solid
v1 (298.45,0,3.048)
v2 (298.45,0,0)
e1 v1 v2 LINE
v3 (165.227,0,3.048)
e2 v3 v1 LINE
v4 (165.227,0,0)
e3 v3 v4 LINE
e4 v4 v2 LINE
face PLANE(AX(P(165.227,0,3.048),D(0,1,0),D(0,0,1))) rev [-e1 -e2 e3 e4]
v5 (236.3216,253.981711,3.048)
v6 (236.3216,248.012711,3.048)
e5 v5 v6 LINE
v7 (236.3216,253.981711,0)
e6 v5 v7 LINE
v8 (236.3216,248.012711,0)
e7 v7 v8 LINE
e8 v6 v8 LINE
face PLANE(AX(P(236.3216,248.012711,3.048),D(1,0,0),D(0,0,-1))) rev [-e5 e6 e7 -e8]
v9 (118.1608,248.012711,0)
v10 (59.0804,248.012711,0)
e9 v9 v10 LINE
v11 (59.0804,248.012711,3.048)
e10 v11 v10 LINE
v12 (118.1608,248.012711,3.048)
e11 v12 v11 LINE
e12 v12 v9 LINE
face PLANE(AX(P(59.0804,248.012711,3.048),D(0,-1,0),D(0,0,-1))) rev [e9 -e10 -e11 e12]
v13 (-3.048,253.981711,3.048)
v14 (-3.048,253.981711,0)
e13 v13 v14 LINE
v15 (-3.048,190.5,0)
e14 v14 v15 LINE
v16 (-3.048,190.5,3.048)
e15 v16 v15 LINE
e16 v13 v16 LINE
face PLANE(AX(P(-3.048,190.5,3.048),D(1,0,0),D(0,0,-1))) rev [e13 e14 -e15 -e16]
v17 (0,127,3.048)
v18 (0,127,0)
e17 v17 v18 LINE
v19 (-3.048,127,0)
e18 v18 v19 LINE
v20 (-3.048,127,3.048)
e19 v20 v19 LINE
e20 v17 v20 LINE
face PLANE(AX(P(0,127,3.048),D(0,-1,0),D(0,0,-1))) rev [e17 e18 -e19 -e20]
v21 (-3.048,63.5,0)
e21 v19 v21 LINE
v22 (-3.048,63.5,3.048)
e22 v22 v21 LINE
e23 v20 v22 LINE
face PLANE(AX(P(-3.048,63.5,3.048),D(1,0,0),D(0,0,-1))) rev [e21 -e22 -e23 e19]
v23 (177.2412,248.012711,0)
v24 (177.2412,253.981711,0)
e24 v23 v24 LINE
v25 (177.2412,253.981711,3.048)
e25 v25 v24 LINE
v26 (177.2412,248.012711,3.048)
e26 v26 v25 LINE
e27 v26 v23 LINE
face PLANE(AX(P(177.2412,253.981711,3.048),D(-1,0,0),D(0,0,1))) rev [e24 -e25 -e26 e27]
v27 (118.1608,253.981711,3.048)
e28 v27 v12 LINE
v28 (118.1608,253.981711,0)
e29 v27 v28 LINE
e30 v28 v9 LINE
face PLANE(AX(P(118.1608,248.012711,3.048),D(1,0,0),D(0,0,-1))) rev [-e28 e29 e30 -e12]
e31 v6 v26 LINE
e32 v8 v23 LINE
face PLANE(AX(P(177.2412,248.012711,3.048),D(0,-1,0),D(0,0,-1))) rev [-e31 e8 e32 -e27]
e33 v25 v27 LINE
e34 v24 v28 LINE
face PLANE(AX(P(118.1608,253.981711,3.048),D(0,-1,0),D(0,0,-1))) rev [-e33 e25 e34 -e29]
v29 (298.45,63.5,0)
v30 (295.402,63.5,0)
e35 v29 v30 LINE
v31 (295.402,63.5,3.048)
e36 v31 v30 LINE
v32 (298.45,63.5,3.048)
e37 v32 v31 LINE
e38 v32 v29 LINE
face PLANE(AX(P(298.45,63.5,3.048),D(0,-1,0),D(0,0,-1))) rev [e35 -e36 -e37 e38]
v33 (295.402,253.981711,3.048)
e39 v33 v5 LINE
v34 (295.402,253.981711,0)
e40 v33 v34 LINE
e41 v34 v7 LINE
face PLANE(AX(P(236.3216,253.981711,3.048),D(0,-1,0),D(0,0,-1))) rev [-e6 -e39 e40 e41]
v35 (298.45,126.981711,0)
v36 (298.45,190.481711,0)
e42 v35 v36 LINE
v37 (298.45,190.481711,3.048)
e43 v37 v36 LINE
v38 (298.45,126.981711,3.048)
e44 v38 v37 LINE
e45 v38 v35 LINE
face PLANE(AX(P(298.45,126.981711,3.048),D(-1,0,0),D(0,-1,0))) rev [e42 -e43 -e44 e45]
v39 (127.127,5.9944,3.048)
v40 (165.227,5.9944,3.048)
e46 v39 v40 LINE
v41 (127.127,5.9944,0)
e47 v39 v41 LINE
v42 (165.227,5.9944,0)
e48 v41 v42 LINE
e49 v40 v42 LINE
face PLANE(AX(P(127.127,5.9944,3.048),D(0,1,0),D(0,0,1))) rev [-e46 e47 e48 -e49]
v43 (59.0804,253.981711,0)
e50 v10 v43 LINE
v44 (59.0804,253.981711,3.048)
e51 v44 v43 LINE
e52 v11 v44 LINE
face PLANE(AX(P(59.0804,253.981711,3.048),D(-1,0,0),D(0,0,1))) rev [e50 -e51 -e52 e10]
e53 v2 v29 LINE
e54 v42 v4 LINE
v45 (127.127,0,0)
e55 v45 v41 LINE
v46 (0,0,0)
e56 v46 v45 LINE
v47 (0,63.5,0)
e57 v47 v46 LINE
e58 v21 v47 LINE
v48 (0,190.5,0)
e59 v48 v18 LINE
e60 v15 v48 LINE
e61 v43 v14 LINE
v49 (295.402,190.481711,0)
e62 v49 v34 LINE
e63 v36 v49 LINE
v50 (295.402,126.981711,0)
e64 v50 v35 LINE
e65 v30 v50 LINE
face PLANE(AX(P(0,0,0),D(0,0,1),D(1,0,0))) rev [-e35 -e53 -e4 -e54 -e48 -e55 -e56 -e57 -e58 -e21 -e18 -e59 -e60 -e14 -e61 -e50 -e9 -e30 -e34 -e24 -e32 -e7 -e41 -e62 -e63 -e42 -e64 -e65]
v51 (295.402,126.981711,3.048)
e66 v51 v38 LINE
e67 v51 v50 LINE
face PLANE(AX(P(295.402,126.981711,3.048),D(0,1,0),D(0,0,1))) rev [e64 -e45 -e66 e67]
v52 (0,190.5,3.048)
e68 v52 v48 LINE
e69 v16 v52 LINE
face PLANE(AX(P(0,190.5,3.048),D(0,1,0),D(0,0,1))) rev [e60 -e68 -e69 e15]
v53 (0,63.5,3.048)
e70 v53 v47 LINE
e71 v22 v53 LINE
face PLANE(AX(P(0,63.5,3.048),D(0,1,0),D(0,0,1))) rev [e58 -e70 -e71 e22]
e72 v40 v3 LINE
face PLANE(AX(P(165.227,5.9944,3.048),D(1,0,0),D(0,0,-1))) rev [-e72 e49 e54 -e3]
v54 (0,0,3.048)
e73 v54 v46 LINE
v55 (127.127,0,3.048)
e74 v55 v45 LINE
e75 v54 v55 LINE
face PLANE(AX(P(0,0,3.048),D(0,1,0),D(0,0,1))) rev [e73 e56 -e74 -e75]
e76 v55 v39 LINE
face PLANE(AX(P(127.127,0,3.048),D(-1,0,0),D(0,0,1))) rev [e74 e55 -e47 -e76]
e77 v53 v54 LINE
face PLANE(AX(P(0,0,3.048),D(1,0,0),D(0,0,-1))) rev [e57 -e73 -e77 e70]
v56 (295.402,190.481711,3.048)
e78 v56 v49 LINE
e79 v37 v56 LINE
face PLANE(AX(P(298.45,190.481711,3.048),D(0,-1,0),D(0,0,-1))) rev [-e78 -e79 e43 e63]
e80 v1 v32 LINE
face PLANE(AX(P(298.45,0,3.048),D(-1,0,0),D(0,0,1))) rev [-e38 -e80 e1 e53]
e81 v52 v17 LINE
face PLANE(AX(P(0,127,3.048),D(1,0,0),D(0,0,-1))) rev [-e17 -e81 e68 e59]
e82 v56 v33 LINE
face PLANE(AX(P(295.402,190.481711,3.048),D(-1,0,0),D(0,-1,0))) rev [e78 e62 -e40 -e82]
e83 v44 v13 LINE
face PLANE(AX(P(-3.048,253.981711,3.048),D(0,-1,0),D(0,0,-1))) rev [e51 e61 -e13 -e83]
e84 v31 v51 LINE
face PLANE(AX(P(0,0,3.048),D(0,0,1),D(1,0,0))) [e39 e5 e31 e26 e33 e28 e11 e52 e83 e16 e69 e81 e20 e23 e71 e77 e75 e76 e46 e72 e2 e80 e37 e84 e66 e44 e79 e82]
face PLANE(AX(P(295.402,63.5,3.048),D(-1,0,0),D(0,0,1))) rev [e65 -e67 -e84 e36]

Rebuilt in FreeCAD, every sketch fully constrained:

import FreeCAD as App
import Part
import Sketcher

V = App.Vector
Q = App.Units.Quantity

doc = App.newDocument("Part")
params = doc.addObject("Spreadsheet::Sheet", "Params")
for row, (alias, value) in enumerate([
    ("sketch1_width", "1.5 in"),
    ("sketch1_height", "2.5 in"),
    ("sketch1_width2", "0.12 in"),
    ("sketch1_width3", "5.245 in"),
    ("sketch1_width4", "2.326 in"),
    ("pad1_length", "0.12 in"),
], start=1):
    params.set(f"A{row}", alias)
    params.set(f"B{row}", "=" + value)
    params.setAlias(f"B{row}", alias)

body = doc.addObject("PartDesign::Body", "Body")

# Sketch on XY plane
sketch1 = body.newObject("Sketcher::SketchObject", "Sketch")
sketch1.AttachmentSupport = (doc.getObject("XY_Plane"), [""])
sketch1.MapMode = "FlatFace"
sketch1.addGeometry([
    Part.LineSegment(V(127.1, 0, 0), V(127.1, 6, 0)),  # 0
    Part.LineSegment(V(127.1, 6, 0), V(165.2, 6, 0)),  # 1
    Part.LineSegment(V(165.2, 6, 0), V(165.2, 0, 0)),  # 2
    Part.LineSegment(V(165.2, 0, 0), V(298.4, 0, 0)),  # 3
    Part.LineSegment(V(298.4, 0, 0), V(298.4, 63.5, 0)),  # 4
    Part.LineSegment(V(298.4, 63.5, 0), V(295.4, 63.5, 0)),  # 5
    Part.LineSegment(V(295.4, 63.5, 0), V(295.4, 127, 0)),  # 6
    Part.LineSegment(V(295.4, 127, 0), V(298.4, 127, 0)),  # 7
    Part.LineSegment(V(298.4, 127, 0), V(298.4, 190.5, 0)),  # 8
    Part.LineSegment(V(298.4, 190.5, 0), V(295.4, 190.5, 0)),  # 9
    Part.LineSegment(V(295.4, 190.5, 0), V(295.4, 254, 0)),  # 10
    Part.LineSegment(V(295.4, 254, 0), V(236.3, 254, 0)),  # 11
    Part.LineSegment(V(236.3, 254, 0), V(236.3, 248, 0)),  # 12
    Part.LineSegment(V(236.3, 248, 0), V(177.2, 248, 0)),  # 13
    Part.LineSegment(V(177.2, 248, 0), V(177.2, 254, 0)),  # 14
    Part.LineSegment(V(177.2, 254, 0), V(118.2, 254, 0)),  # 15
    Part.LineSegment(V(118.2, 254, 0), V(118.2, 248, 0)),  # 16
    Part.LineSegment(V(118.2, 248, 0), V(59.1, 248, 0)),  # 17
    Part.LineSegment(V(59.1, 248, 0), V(59.1, 254, 0)),  # 18
    Part.LineSegment(V(59.1, 254, 0), V(-3, 254, 0)),  # 19
    Part.LineSegment(V(-3, 254, 0), V(-3, 190.5, 0)),  # 20
    Part.LineSegment(V(-3, 190.5, 0), V(0, 190.5, 0)),  # 21
    Part.LineSegment(V(0, 190.5, 0), V(0, 127, 0)),  # 22
    Part.LineSegment(V(0, 127, 0), V(-3, 127, 0)),  # 23
    Part.LineSegment(V(-3, 127, 0), V(-3, 63.5, 0)),  # 24
    Part.LineSegment(V(-3, 63.5, 0), V(0, 63.5, 0)),  # 25
    Part.LineSegment(V(0, 63.5, 0), V(0, 0, 0)),  # 26
    Part.LineSegment(V(0, 0, 0), V(127.1, 0, 0)),  # 27
], False)
sketch1.addConstraint([
    Sketcher.Constraint("Coincident", 0, 2, 1, 1),
    Sketcher.Constraint("Coincident", 1, 2, 2, 1),
    Sketcher.Constraint("Coincident", 2, 2, 3, 1),
    Sketcher.Constraint("Coincident", 3, 2, 4, 1),
    Sketcher.Constraint("Coincident", 4, 2, 5, 1),
    Sketcher.Constraint("Coincident", 5, 2, 6, 1),
    Sketcher.Constraint("Coincident", 6, 2, 7, 1),
    Sketcher.Constraint("Coincident", 7, 2, 8, 1),
    Sketcher.Constraint("Coincident", 8, 2, 9, 1),
    Sketcher.Constraint("Coincident", 9, 2, 10, 1),
    Sketcher.Constraint("Coincident", 10, 2, 11, 1),
    Sketcher.Constraint("Coincident", 11, 2, 12, 1),
    Sketcher.Constraint("Coincident", 12, 2, 13, 1),
    Sketcher.Constraint("Coincident", 13, 2, 14, 1),
    Sketcher.Constraint("Coincident", 14, 2, 15, 1),
    Sketcher.Constraint("Coincident", 15, 2, 16, 1),
    Sketcher.Constraint("Coincident", 16, 2, 17, 1),
    Sketcher.Constraint("Coincident", 17, 2, 18, 1),
    Sketcher.Constraint("Coincident", 18, 2, 19, 1),
    Sketcher.Constraint("Coincident", 19, 2, 20, 1),
    Sketcher.Constraint("Coincident", 20, 2, 21, 1),
    Sketcher.Constraint("Coincident", 21, 2, 22, 1),
    Sketcher.Constraint("Coincident", 22, 2, 23, 1),
    Sketcher.Constraint("Coincident", 23, 2, 24, 1),
    Sketcher.Constraint("Coincident", 24, 2, 25, 1),
    Sketcher.Constraint("Coincident", 25, 2, 26, 1),
    Sketcher.Constraint("Coincident", 26, 2, 27, 1),
    Sketcher.Constraint("Coincident", 27, 2, 0, 1),
    Sketcher.Constraint("Vertical", 0),
    Sketcher.Constraint("Horizontal", 1),
    Sketcher.Constraint("Vertical", 2),
    Sketcher.Constraint("Horizontal", 3),
    Sketcher.Constraint("Vertical", 4),
    Sketcher.Constraint("Horizontal", 5),
    Sketcher.Constraint("Vertical", 6),
    Sketcher.Constraint("Horizontal", 7),
    Sketcher.Constraint("Vertical", 8),
    Sketcher.Constraint("Horizontal", 9),
    Sketcher.Constraint("Vertical", 10),
    Sketcher.Constraint("Horizontal", 11),
    Sketcher.Constraint("Vertical", 12),
    Sketcher.Constraint("Horizontal", 13),
    Sketcher.Constraint("Vertical", 14),
    Sketcher.Constraint("Horizontal", 15),
    Sketcher.Constraint("Vertical", 16),
    Sketcher.Constraint("Horizontal", 17),
    Sketcher.Constraint("Vertical", 18),
    Sketcher.Constraint("Horizontal", 19),
    Sketcher.Constraint("Vertical", 20),
    Sketcher.Constraint("Horizontal", 21),
    Sketcher.Constraint("Vertical", 22),
    Sketcher.Constraint("Horizontal", 23),
    Sketcher.Constraint("Vertical", 24),
    Sketcher.Constraint("Horizontal", 25),
    Sketcher.Constraint("Vertical", 26),
    Sketcher.Constraint("Horizontal", 27),
    Sketcher.Constraint("Coincident", 26, 2, -1, 1),
    Sketcher.Constraint("PointOnObject", 2, 2, -1),
    Sketcher.Constraint("PointOnObject", 21, 2, -2),
    Sketcher.Constraint("Horizontal", 11, 2, 14, 2),
    Sketcher.Constraint("Horizontal", 13, 2, 16, 2),
    Sketcher.Constraint("Horizontal", 15, 2, 18, 2),
    Sketcher.Constraint("Horizontal", 5, 2, 24, 2),
    Sketcher.Constraint("Vertical", 4, 2, 7, 2),
    Sketcher.Constraint("Vertical", 6, 2, 9, 2),
    Sketcher.Constraint("Vertical", 20, 2, 23, 2),
    Sketcher.Constraint("Equal", 11, 13),
    Sketcher.Constraint("Equal", 13, 15),
    Sketcher.Constraint("Equal", 15, 17),
    Sketcher.Constraint("Equal", 9, 21),
    Sketcher.Constraint("Equal", 4, 8),
    Sketcher.Constraint("Equal", 8, 10),
    Sketcher.Constraint("Equal", 6, 20),
    Sketcher.Constraint("Equal", 10, 22),
    Sketcher.Constraint("DistanceX", 1, 1, 1, 2, Q("1.5 in")),
    Sketcher.Constraint("DistanceY", 4, 1, 4, 2, Q("2.5 in")),
    Sketcher.Constraint("DistanceX", 5, 2, 5, 1, Q("0.12 in")),
    Sketcher.Constraint("DistanceX", 3, 1, 3, 2, Q("5.245 in")),
    Sketcher.Constraint("DistanceX", 11, 2, 11, 1, Q("2.326 in")),
    Sketcher.Constraint("DistanceX", 19, 2, 19, 1, Q("2.446 in")),
    Sketcher.Constraint("DistanceY", 0, 1, 0, 2, Q("0.236 in")),
    Sketcher.Constraint("DistanceY", 12, 2, 12, 1, Q("0.235 in")),
    Sketcher.Constraint("DistanceY", 6, 1, 6, 2, 63.481711),
])
sketch1.setExpression("Constraints[74]", "Params.sketch1_width")
sketch1.setExpression("Constraints[75]", "Params.sketch1_height")
sketch1.setExpression("Constraints[76]", "Params.sketch1_width2")
sketch1.setExpression("Constraints[77]", "Params.sketch1_width3")
sketch1.setExpression("Constraints[78]", "Params.sketch1_width4")
pad1 = body.newObject("PartDesign::Pad", "Pad")
pad1.Profile = sketch1
pad1.setExpression("Length", "Params.pad1_length")

doc.recompute()
